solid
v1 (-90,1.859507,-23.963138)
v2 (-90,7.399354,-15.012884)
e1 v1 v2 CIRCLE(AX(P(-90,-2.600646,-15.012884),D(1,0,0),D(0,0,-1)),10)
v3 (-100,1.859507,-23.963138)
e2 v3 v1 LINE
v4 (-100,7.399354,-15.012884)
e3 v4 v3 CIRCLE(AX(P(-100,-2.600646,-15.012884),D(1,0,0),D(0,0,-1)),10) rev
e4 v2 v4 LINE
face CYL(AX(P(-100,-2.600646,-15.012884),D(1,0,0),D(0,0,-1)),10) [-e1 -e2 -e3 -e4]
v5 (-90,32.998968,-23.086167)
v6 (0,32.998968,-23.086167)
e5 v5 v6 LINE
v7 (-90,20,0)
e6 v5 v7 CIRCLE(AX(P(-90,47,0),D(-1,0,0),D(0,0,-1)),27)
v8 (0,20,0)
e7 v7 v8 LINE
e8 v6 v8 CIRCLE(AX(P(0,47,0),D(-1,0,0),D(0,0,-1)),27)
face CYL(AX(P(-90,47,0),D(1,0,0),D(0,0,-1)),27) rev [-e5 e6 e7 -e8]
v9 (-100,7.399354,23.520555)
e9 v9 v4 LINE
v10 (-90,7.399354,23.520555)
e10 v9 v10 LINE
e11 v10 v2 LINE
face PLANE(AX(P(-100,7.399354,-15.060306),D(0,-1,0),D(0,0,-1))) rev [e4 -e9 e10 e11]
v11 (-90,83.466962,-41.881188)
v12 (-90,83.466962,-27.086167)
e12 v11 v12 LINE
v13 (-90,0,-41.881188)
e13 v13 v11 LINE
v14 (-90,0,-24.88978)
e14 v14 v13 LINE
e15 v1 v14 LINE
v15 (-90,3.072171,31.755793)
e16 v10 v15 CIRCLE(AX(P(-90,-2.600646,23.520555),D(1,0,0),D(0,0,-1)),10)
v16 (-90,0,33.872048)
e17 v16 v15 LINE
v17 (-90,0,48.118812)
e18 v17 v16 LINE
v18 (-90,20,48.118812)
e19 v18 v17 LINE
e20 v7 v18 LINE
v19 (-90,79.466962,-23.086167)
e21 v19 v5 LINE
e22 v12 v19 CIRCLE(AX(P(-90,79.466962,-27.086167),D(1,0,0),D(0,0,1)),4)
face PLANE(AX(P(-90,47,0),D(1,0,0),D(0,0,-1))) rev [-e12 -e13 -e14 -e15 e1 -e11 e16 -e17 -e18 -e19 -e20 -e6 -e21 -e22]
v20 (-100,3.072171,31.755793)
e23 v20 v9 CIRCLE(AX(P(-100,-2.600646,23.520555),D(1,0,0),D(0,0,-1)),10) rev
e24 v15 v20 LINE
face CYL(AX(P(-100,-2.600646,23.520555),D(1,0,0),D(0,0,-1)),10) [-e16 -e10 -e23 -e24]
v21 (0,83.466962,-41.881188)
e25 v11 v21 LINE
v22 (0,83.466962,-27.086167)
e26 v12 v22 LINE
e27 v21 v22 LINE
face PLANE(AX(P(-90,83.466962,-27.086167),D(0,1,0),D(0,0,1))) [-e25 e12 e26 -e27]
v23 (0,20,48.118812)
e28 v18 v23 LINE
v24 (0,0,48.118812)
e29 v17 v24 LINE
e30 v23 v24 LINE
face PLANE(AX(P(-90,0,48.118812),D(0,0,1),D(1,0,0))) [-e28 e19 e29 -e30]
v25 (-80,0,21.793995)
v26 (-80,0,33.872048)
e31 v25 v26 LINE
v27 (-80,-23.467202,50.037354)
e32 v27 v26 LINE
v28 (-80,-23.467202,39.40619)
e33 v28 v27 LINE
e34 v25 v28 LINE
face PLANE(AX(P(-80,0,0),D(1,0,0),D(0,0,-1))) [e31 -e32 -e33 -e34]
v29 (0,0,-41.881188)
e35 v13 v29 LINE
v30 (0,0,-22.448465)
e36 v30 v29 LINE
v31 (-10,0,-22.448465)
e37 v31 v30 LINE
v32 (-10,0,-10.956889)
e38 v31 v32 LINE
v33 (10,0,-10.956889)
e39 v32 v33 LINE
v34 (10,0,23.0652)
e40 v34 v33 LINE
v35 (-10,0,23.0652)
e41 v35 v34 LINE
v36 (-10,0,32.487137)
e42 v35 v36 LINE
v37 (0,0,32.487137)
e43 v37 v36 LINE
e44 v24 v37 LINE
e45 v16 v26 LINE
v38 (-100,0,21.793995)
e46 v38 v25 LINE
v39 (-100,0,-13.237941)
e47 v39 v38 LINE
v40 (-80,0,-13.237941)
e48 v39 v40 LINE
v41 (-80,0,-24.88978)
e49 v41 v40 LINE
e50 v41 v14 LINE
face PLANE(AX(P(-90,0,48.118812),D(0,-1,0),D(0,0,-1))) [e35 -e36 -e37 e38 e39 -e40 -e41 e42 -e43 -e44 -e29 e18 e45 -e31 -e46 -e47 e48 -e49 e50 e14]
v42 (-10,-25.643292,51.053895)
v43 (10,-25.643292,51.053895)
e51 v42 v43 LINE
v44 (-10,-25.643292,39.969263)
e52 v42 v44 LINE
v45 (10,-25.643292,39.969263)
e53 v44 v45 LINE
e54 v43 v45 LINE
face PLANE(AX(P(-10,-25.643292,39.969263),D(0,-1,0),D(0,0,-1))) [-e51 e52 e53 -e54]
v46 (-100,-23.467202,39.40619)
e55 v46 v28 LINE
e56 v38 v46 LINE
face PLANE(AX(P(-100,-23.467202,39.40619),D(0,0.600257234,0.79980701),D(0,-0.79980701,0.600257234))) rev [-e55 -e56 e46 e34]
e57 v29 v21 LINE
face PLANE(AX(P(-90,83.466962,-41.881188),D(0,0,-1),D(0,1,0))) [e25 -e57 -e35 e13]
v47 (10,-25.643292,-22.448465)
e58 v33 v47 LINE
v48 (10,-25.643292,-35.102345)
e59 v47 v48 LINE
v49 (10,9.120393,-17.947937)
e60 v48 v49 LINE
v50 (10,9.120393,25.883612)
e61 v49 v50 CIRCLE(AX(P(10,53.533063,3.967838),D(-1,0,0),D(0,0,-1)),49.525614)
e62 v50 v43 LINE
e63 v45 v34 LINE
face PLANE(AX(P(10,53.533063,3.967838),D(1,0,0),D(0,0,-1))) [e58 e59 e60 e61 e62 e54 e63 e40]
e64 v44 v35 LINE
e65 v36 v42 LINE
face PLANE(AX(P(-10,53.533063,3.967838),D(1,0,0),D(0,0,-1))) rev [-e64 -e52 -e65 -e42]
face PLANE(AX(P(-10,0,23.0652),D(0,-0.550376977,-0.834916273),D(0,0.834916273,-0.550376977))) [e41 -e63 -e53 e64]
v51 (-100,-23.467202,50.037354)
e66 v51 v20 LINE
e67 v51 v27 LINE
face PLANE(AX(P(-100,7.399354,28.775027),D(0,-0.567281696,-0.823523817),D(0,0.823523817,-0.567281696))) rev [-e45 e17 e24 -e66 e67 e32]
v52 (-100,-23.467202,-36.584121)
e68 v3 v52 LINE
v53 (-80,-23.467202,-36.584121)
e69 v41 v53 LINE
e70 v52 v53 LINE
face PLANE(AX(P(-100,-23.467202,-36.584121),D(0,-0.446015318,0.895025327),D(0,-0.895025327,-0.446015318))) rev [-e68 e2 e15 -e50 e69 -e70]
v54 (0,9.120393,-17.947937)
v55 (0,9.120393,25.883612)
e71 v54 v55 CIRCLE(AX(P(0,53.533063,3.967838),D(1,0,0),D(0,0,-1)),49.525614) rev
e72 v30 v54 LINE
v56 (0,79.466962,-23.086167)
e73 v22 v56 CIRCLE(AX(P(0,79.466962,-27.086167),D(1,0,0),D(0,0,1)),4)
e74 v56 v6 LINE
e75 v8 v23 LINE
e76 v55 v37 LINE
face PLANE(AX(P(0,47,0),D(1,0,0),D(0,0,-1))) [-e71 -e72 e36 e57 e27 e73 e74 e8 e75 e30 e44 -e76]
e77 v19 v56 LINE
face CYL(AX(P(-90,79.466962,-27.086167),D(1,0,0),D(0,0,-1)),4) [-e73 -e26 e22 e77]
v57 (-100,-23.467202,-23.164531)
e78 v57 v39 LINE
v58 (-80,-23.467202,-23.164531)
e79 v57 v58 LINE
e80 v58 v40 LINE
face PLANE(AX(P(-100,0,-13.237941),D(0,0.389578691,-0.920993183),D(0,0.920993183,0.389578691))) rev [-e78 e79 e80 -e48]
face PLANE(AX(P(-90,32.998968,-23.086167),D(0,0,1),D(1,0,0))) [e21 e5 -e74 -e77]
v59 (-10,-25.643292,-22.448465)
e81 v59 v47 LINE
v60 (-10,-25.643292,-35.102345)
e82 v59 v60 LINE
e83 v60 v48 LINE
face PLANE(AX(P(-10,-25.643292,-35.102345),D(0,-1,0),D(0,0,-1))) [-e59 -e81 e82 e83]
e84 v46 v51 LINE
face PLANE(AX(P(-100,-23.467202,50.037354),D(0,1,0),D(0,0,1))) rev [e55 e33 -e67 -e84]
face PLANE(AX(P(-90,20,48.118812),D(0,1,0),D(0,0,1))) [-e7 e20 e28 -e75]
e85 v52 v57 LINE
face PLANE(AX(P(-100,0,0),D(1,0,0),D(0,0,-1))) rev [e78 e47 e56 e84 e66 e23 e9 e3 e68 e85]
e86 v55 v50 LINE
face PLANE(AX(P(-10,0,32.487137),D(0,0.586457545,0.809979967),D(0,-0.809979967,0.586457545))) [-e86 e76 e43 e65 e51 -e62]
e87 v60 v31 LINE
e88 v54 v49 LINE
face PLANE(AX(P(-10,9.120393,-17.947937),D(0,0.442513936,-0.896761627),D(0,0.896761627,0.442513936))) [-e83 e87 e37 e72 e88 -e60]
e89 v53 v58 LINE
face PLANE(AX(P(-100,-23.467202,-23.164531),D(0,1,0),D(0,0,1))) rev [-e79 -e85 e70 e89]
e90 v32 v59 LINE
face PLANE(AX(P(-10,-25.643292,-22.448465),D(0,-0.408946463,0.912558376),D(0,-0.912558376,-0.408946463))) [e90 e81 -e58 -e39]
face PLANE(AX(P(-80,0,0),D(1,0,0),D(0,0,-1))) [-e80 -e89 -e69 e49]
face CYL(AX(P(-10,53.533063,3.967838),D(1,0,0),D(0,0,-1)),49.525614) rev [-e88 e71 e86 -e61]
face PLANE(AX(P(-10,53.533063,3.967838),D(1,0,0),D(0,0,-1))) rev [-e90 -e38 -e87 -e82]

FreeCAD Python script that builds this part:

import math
import FreeCAD as App
import Part
import Sketcher


def edges_at(feature, points):
    """Names of the edges that pass closest to the given points."""
    edges = feature.Shape.Edges
    near = lambda p: min(range(len(edges)), key=lambda i: edges[i].distToShape(Part.Vertex(*p))[0])
    return sorted({f"Edge{near(p) + 1}" for p in points})

doc = App.newDocument("Part")
body = doc.addObject("PartDesign::Body", "Body")

# Sketch on YZ plane
sketch1 = body.newObject("Sketcher::SketchObject", "Sketch")
sketch1.AttachmentSupport = (doc.getObject("YZ_Plane"), [""])
sketch1.MapMode = "FlatFace"
sketch1.addGeometry([
    Part.LineSegment(App.Vector(0, 48.1, 0), App.Vector(0, -41.9, 0)),  # 0
    Part.LineSegment(App.Vector(0, -41.9, 0), App.Vector(83.5, -41.9, 0)),  # 1
    Part.LineSegment(App.Vector(83.5, -41.9, 0), App.Vector(83.5, -27.1, 0)),  # 2
    Part.ArcOfCircle(Part.Circle(App.Vector(79.5, -27.1, 0), App.Vector(0, 0, 1), 4), math.radians(0), math.radians(90)),  # 3
    Part.LineSegment(App.Vector(79.5, -23.1, 0), App.Vector(33, -23.1, 0)),  # 4
    Part.ArcOfCircle(Part.Circle(App.Vector(47, 0, 0), App.Vector(0, 0, 1), 27), math.radians(-180), math.radians(-121)),  # 5
    Part.LineSegment(App.Vector(20, 0, 0), App.Vector(20, 48.1, 0)),  # 6
    Part.LineSegment(App.Vector(20, 48.1, 0), App.Vector(0, 48.1, 0)),  # 7
], False)
sketch1.addConstraint([
    Sketcher.Constraint("Coincident", 0, 2, 1, 1),
    Sketcher.Constraint("Coincident", 1, 2, 2, 1),
    Sketcher.Constraint("Tangent", 2, 2, 3, 1),
    Sketcher.Constraint("Tangent", 3, 2, 4, 1),
    Sketcher.Constraint("Coincident", 4, 2, 5, 2),
    Sketcher.Constraint("Tangent", 5, 1, 6, 1),
    Sketcher.Constraint("Coincident", 6, 2, 7, 1),
    Sketcher.Constraint("Coincident", 7, 2, 0, 1),
    Sketcher.Constraint("Vertical", 0),
    Sketcher.Constraint("Horizontal", 1),
    Sketcher.Constraint("Vertical", 2),
    Sketcher.Constraint("Horizontal", 4),
    Sketcher.Constraint("Vertical", 6),
    Sketcher.Constraint("Horizontal", 7),
    Sketcher.Constraint("PointOnObject", 5, 3, -1),
    Sketcher.Constraint("PointOnObject", 0, 2, -2),
    Sketcher.Constraint("Radius", 3, 4.0),
    Sketcher.Constraint("Radius", 5, 27.0),
    Sketcher.Constraint("DistanceX", 7, 2, 7, 1, 20.0),
    Sketcher.Constraint("DistanceY", 0, 2, 0, 1, 90.0),
    Sketcher.Constraint("DistanceX", 1, 1, 1, 2, 83.466962),
    Sketcher.Constraint("DistanceY", 2, 1, 2, 2, 14.795021),
    Sketcher.Constraint("DistanceY", 6, 1, 6, 2, 48.118812),
])
pad1 = body.newObject("PartDesign::Pad", "Pad")
pad1.Profile = sketch1
pad1.Length = 90
pad1.Reversed = True

# Sketch on YZ plane
sketch2 = body.newObject("Sketcher::SketchObject", "Sketch001")
sketch2.AttachmentSupport = (doc.getObject("YZ_Plane"), [""])
sketch2.MapMode = "FlatFace"
sketch2.addGeometry([
    Part.LineSegment(App.Vector(0, 32, 0), App.Vector(-26, 51, 0)),  # 0
    Part.LineSegment(App.Vector(-26, 51, 0), App.Vector(-26, 40, 0)),  # 1
    Part.LineSegment(App.Vector(-26, 40, 0), App.Vector(0, 23, 0)),  # 2
    Part.LineSegment(App.Vector(0, 23, 0), App.Vector(0, -11, 0)),  # 3
    Part.LineSegment(App.Vector(0, -11, 0), App.Vector(-26, -22, 0)),  # 4
    Part.LineSegment(App.Vector(-26, -22, 0), App.Vector(-26, -35, 0)),  # 5
    Part.LineSegment(App.Vector(-26, -35, 0), App.Vector(0, -22, 0)),  # 6
    Part.LineSegment(App.Vector(0, -22, 0), App.Vector(9, -18, 0)),  # 7
    Part.ArcOfCircle(Part.Circle(App.Vector(54, 4, 0), App.Vector(0, 0, 1), 50), math.radians(154), math.radians(206)),  # 8
    Part.LineSegment(App.Vector(9, 26, 0), App.Vector(0, 32, 0)),  # 9
], False)
sketch2.addConstraint([
    Sketcher.Constraint("Coincident", 0, 2, 1, 1),
    Sketcher.Constraint("Coincident", 1, 2, 2, 1),
    Sketcher.Constraint("Coincident", 2, 2, 3, 1),
    Sketcher.Constraint("Coincident", 3, 2, 4, 1),
    Sketcher.Constraint("Coincident", 4, 2, 5, 1),
    Sketcher.Constraint("Coincident", 5, 2, 6, 1),
    Sketcher.Constraint("Coincident", 6, 2, 7, 1),
    Sketcher.Constraint("Coincident", 7, 2, 8, 2),
    Sketcher.Constraint("Coincident", 8, 1, 9, 1),
    Sketcher.Constraint("Coincident", 9, 2, 0, 1),
    Sketcher.Constraint("Vertical", 1),
    Sketcher.Constraint("Vertical", 3),
    Sketcher.Constraint("Vertical", 5),
    Sketcher.Constraint("PointOnObject", 2, 2, -2),
    Sketcher.Constraint("PointOnObject", 6, 2, -2),
    Sketcher.Constraint("PointOnObject", 9, 2, -2),
    Sketcher.Constraint("Parallel", 6, 7),
    Sketcher.Constraint("Parallel", 0, 9),
    Sketcher.Constraint("Horizontal", 4, 2, 6, 2),
    Sketcher.Constraint("Vertical", 1, 2, 4, 2),
    Sketcher.Constraint("Vertical", 7, 2, 8, 1),
    Sketcher.Constraint("Radius", 8, 49.525614),
    Sketcher.Constraint("DistanceY", 1, 2, 1, 1, 11.084632),
    Sketcher.Constraint("DistanceY", 3, 2, 3, 1, 34.022089),
    Sketcher.Constraint("DistanceY", 5, 2, 5, 1, 12.65388),
    Sketcher.Constraint("DistanceY", -1, 1, 2, 2, 23.0652),
    Sketcher.Constraint("DistanceY", 3, 2, 8, 1, 36.840501),
    Sketcher.Constraint("Distance", 2, 30.713609),
    Sketcher.Constraint("Distance", 4, 28.10044),
    Sketcher.Constraint("Distance", 6, 28.595438),
    Sketcher.Constraint("DistanceY", 6, 2, 7, 2, 4.500528),
])
pad2 = body.newObject("PartDesign::Pad", "Pad001")
pad2.Profile = sketch2
pad2.Length = 20
pad2.Midplane = True

# Sketch on YZ plane
sketch3 = body.newObject("Sketcher::SketchObject", "Sketch002")
sketch3.AttachmentSupport = (doc.getObject("YZ_Plane"), [""])
sketch3.MapMode = "FlatFace"
sketch3.AttachmentOffset = App.Placement(App.Vector(0, 0, -90), App.Rotation())
sketch3.addGeometry([
    Part.LineSegment(App.Vector(7, 29, 0), App.Vector(7, -21, 0)),  # 0
    Part.LineSegment(App.Vector(7, -21, 0), App.Vector(-23, -37, 0)),  # 1
    Part.LineSegment(App.Vector(-23, -37, 0), App.Vector(-23, -23, 0)),  # 2
    Part.LineSegment(App.Vector(-23, -23, 0), App.Vector(0, -13, 0)),  # 3
    Part.LineSegment(App.Vector(0, -13, 0), App.Vector(0, 22, 0)),  # 4
    Part.LineSegment(App.Vector(0, 22, 0), App.Vector(-23, 39, 0)),  # 5
    Part.LineSegment(App.Vector(-23, 39, 0), App.Vector(-23, 50, 0)),  # 6
    Part.LineSegment(App.Vector(-23, 50, 0), App.Vector(7, 29, 0)),  # 7
], False)
sketch3.addConstraint([
    Sketcher.Constraint("Coincident", 0, 2, 1, 1),
    Sketcher.Constraint("Coincident", 1, 2, 2, 1),
    Sketcher.Constraint("Coincident", 2, 2, 3, 1),
    Sketcher.Constraint("Coincident", 3, 2, 4, 1),
    Sketcher.Constraint("Coincident", 4, 2, 5, 1),
    Sketcher.Constraint("Coincident", 5, 2, 6, 1),
    Sketcher.Constraint("Coincident", 6, 2, 7, 1),
    Sketcher.Constraint("Coincident", 7, 2, 0, 1),
    Sketcher.Constraint("Vertical", 0),
    Sketcher.Constraint("Vertical", 2),
    Sketcher.Constraint("Vertical", 4),
    Sketcher.Constraint("Vertical", 6),
    Sketcher.Constraint("PointOnObject", 3, 2, -2),
    Sketcher.Constraint("Vertical", 2, 2, 5, 2),
    Sketcher.Constraint("DistanceY", 0, 2, 0, 1, 49.977509),
    Sketcher.Constraint("DistanceY", 2, 1, 2, 2, 13.41959),
    Sketcher.Constraint("DistanceX", 1, 2, -1, 1, 23.467202),
    Sketcher.Constraint("Distance", 3, 25.480321),
    Sketcher.Constraint("Distance", 5, 29.34108),
    Sketcher.Constraint("DistanceY", 4, 1, 4, 2, 35.031936),
    Sketcher.Constraint("DistanceY", 6, 1, 6, 2, 10.631163),
    Sketcher.Constraint("DistanceY", 1, 2, -1, 1, 36.584121),
    Sketcher.Constraint("DistanceY", 1, 2, 0, 2, 15.381639),
    Sketcher.Constraint("Distance", 1, 34.486796),
])
pad3 = body.newObject("PartDesign::Pad", "Pad002")
pad3.Profile = sketch3
pad3.Length = 20
pad3.Midplane = True
doc.recompute()

fillet = body.newObject("PartDesign::Fillet", "Fillet")
fillet.Base = (pad3, edges_at(pad3, [(-95, 7.399, 28.775), (-95, 7.399, -21.202)]))
fillet.Radius = 10

doc.recompute()
